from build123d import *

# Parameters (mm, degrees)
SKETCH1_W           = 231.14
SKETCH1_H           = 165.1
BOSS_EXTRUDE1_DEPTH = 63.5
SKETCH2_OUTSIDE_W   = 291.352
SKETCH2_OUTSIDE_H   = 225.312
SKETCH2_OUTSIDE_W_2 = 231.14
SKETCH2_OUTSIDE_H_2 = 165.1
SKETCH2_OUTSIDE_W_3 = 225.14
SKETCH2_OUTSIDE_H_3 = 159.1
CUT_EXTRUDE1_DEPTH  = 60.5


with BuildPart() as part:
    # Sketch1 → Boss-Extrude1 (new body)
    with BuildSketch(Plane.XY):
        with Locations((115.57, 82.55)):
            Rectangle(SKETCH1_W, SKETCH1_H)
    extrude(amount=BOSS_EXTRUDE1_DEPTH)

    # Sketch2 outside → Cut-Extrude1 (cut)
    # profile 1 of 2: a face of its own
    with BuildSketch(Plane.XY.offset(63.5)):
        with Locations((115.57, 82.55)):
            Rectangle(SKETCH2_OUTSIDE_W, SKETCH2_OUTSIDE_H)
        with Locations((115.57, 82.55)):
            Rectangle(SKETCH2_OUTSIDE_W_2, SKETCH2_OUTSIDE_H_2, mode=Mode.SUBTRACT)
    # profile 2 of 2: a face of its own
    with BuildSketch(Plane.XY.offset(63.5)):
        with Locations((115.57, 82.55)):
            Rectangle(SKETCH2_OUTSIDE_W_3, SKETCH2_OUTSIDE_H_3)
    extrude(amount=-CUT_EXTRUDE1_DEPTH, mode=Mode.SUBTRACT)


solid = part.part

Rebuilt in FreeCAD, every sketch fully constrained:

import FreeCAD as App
import Part
import Sketcher
from FreeCAD import Vector
Q = App.Units.Quantity

doc = App.newDocument("Part")
body = doc.addObject("PartDesign::Body", "Body")

sketch1 = body.newObject("Sketcher::SketchObject", "Sketch")
sketch1.AttachmentSupport = (doc.getObject("XY_Plane"), [""])
sketch1.MapMode = "FlatFace"
sketch1.addGeometry([
    Part.LineSegment(Vector(0, 165, 0), Vector(0, 0, 0)),
    Part.LineSegment(Vector(0, 0, 0), Vector(231, 0, 0)),
    Part.LineSegment(Vector(231, 0, 0), Vector(231, 165, 0)),
    Part.LineSegment(Vector(231, 165, 0), Vector(0, 165, 0)),
], False)
sketch1.addConstraint([
    Sketcher.Constraint("Coincident", 0, 2, 1, 1),
    Sketcher.Constraint("Coincident", 1, 2, 2, 1),
    Sketcher.Constraint("Coincident", 2, 2, 3, 1),
    Sketcher.Constraint("Coincident", 3, 2, 0, 1),
    Sketcher.Constraint("Vertical", 0),
    Sketcher.Constraint("Horizontal", 1),
    Sketcher.Constraint("Vertical", 2),
    Sketcher.Constraint("Horizontal", 3),
    Sketcher.Constraint("Coincident", 0, 2, -1, 1),
    Sketcher.Constraint("DistanceX", 1, 1, 1, 2, Q("9.1 in")),
    Sketcher.Constraint("DistanceY", 0, 2, 0, 1, Q("6.5 in")),
])
pad1 = body.newObject("PartDesign::Pad", "Pad")
pad1.Profile = sketch1
pad1.Length = Q("2.5 in")

sketch2 = body.newObject("Sketcher::SketchObject", "Sketch001")
sketch2.AttachmentSupport = (doc.getObject("XY_Plane"), [""])
sketch2.MapMode = "FlatFace"
sketch2.AttachmentOffset = App.Placement(Vector(0, 0, 2.5 * 25.4), App.Rotation())
sketch2.addGeometry([
    Part.LineSegment(Vector(-30, 195, 0), Vector(-30, -30, 0)),
    Part.LineSegment(Vector(-30, -30, 0), Vector(261, -30, 0)),
    Part.LineSegment(Vector(261, -30, 0), Vector(261, 195, 0)),
    Part.LineSegment(Vector(261, 195, 0), Vector(-30, 195, 0)),
    Part.LineSegment(Vector(231, 0, 0), Vector(0, 0, 0)),
    Part.LineSegment(Vector(0, 0, 0), Vector(0, 165, 0)),
    Part.LineSegment(Vector(0, 165, 0), Vector(231, 165, 0)),
    Part.LineSegment(Vector(231, 165, 0), Vector(231, 0, 0)),
    Part.LineSegment(Vector(3, 162, 0), Vector(3, 3, 0)),
    Part.LineSegment(Vector(3, 3, 0), Vector(228, 3, 0)),
    Part.LineSegment(Vector(228, 3, 0), Vector(228, 162, 0)),
    Part.LineSegment(Vector(228, 162, 0), Vector(3, 162, 0)),
], False)
sketch2.addConstraint([
    Sketcher.Constraint("Coincident", 0, 2, 1, 1),
    Sketcher.Constraint("Coincident", 1, 2, 2, 1),
    Sketcher.Constraint("Coincident", 2, 2, 3, 1),
    Sketcher.Constraint("Coincident", 3, 2, 0, 1),
    Sketcher.Constraint("Coincident", 4, 2, 5, 1),
    Sketcher.Constraint("Coincident", 5, 2, 6, 1),
    Sketcher.Constraint("Coincident", 6, 2, 7, 1),
    Sketcher.Constraint("Coincident", 7, 2, 4, 1),
    Sketcher.Constraint("Coincident", 8, 2, 9, 1),
    Sketcher.Constraint("Coincident", 9, 2, 10, 1),
    Sketcher.Constraint("Coincident", 10, 2, 11, 1),
    Sketcher.Constraint("Coincident", 11, 2, 8, 1),
    Sketcher.Constraint("Vertical", 0),
    Sketcher.Constraint("Horizontal", 1),
    Sketcher.Constraint("Vertical", 2),
    Sketcher.Constraint("Horizontal", 3),
    Sketcher.Constraint("Horizontal", 4),
    Sketcher.Constraint("Vertical", 5),
    Sketcher.Constraint("Horizontal", 6),
    Sketcher.Constraint("Vertical", 7),
    Sketcher.Constraint("Vertical", 8),
    Sketcher.Constraint("Horizontal", 9),
    Sketcher.Constraint("Vertical", 10),
    Sketcher.Constraint("Horizontal", 11),
    Sketcher.Constraint("Coincident", 4, 2, -1, 1),
    Sketcher.Constraint("DistanceX", 4, 2, 4, 1, Q("9.1 in")),
    Sketcher.Constraint("DistanceY", 5, 1, 5, 2, Q("6.5 in")),
    Sketcher.Constraint("DistanceX", 1, 1, 1, 2, Q("291.352 mm")),
    Sketcher.Constraint("DistanceX", 9, 1, 9, 2, Q("225.14 mm")),
    Sketcher.Constraint("DistanceY", 0, 2, 0, 1, Q("225.312 mm")),
    Sketcher.Constraint("DistanceY", 8, 2, 8, 1, Q("159.1 mm")),
    Sketcher.Constraint("DistanceX", 0, 2, -1, 1, Q("30.106 mm")),
    Sketcher.Constraint("DistanceY", 0, 2, -1, 1, Q("30.106 mm")),
    Sketcher.Constraint("DistanceX", -1, 1, 8, 2, Q("3 mm")),
    Sketcher.Constraint("DistanceY", -1, 1, 8, 2, Q("3 mm")),
])
pocket1 = body.newObject("PartDesign::Pocket", "Pocket")
pocket1.Profile = sketch2
pocket1.Length = 60.5

doc.recompute()
